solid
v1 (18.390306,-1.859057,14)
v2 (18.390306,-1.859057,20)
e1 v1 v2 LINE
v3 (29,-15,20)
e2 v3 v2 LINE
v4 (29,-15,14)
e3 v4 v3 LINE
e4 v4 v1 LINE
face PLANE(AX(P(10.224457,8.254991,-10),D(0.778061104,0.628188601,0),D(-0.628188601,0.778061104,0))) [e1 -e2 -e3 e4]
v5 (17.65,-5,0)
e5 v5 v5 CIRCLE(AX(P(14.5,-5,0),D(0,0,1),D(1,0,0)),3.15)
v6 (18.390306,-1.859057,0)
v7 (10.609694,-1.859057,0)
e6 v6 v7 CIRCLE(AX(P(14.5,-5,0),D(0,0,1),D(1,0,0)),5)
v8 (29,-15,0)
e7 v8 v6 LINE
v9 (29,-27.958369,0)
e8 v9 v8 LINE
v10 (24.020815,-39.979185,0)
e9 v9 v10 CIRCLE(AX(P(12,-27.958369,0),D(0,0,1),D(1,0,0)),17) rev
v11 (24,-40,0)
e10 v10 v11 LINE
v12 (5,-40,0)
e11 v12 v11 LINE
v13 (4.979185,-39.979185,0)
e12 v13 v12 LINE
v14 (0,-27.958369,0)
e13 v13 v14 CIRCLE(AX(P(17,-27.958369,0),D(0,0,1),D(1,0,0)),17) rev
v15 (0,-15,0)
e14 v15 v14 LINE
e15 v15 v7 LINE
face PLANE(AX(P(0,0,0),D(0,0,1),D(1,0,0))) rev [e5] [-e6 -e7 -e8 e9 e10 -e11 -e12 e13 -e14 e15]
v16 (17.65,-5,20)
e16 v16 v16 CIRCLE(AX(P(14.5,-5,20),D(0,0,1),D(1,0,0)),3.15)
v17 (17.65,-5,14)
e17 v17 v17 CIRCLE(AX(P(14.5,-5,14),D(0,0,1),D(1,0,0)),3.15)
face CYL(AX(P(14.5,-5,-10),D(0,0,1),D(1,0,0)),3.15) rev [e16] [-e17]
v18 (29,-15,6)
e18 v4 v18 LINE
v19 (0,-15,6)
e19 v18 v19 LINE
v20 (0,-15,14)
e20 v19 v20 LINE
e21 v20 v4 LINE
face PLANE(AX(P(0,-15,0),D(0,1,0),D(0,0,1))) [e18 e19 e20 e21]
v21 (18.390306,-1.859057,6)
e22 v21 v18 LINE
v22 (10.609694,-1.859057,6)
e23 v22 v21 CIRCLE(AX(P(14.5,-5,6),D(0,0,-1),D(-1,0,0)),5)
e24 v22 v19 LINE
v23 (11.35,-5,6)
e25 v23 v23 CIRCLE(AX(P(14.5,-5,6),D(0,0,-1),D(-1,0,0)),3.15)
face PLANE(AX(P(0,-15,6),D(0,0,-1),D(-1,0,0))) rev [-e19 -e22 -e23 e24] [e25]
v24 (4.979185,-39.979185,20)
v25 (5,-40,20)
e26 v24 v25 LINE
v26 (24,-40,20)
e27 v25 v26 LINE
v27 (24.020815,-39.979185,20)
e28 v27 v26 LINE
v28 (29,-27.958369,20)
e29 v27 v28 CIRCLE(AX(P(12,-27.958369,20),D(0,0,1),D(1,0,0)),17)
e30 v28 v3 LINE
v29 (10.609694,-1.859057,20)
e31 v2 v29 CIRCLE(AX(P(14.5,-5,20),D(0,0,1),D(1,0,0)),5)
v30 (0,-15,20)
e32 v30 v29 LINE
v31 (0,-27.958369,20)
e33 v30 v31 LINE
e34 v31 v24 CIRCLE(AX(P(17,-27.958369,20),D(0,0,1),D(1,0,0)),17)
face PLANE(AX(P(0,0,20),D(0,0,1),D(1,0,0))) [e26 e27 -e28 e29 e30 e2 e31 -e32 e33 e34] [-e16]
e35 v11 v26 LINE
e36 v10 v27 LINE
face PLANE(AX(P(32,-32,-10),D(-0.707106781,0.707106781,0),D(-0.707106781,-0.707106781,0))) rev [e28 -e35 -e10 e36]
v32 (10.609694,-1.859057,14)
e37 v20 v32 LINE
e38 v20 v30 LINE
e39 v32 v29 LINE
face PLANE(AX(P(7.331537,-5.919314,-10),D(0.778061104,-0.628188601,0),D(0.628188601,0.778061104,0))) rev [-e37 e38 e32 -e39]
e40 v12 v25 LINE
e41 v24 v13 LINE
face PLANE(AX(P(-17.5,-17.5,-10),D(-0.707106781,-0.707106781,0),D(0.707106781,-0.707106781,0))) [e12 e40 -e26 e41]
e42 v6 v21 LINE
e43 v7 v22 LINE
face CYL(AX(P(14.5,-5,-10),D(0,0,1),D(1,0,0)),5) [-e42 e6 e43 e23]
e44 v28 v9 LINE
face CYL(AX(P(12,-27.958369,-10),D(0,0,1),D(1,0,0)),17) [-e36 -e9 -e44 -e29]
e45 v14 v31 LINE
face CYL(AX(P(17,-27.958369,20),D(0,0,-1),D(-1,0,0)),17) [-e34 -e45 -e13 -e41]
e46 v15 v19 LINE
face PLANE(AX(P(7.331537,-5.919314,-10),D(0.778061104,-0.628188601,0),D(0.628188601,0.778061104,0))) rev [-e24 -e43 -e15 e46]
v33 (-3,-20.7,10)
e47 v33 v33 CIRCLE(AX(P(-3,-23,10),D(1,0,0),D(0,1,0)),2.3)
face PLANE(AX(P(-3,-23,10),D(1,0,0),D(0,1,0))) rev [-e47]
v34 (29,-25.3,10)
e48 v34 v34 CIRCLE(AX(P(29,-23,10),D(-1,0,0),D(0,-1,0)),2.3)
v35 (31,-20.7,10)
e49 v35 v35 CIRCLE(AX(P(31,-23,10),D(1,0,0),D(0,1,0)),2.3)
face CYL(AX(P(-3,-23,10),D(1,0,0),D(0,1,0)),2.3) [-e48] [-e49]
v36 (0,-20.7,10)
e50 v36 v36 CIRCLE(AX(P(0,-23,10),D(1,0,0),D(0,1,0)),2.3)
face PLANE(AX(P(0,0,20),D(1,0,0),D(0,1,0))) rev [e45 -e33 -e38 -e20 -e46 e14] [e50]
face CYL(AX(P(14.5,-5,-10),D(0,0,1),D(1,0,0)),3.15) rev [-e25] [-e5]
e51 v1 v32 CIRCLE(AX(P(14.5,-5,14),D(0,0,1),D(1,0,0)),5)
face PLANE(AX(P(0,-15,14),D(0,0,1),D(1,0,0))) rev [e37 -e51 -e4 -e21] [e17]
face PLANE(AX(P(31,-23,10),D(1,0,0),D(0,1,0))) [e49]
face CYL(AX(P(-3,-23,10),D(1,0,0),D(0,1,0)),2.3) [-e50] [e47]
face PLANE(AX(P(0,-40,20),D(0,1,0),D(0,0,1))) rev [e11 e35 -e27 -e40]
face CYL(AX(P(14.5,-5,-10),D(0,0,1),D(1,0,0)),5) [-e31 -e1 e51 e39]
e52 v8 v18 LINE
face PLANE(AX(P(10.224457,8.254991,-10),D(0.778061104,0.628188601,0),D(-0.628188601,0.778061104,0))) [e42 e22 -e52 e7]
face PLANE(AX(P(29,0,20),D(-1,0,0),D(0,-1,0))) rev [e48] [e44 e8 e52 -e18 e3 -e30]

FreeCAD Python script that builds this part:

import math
import FreeCAD as App
import Part
import Sketcher
from FreeCAD import Vector


def edges_at(feature, points):
    """Names of the edges that pass closest to the given points."""
    edges = feature.Shape.Edges
    near = lambda p: min(range(len(edges)), key=lambda i: edges[i].distToShape(Part.Vertex(*p))[0])
    return sorted({f"Edge{near(p) + 1}" for p in points})


def add_polygon(sketch, points):
    """Adds a closed chain of lines whose ends are joined by coincident constraints."""
    first, n = sketch.GeometryCount, len(points)
    for a, b in zip(points, points[1:] + points[:1]):
        sketch.addGeometry(Part.LineSegment(App.Vector(*a, 0), App.Vector(*b, 0)), False)
    for i in range(n):
        sketch.addConstraint(Sketcher.Constraint("Coincident", first + i, 2, first + (i + 1) % n, 1))

doc = App.newDocument("Part")
body = doc.addObject("PartDesign::Body", "Body")

sketch1 = body.newObject("Sketcher::SketchObject", "Sketch")
sketch1.AttachmentSupport = (doc.getObject("XY_Plane"), [""])
sketch1.MapMode = "FlatFace"
add_polygon(sketch1, [(0, 0), (0, -40), (29, -40), (29, 0)])
sketch1.addConstraint([
    Sketcher.Constraint("Vertical", 0),
    Sketcher.Constraint("Horizontal", 1),
    Sketcher.Constraint("Vertical", 2),
    Sketcher.Constraint("Horizontal", 3),
    Sketcher.Constraint("Coincident", 3, 2, -1, 1),
    Sketcher.Constraint("DistanceX", 1, 1, 1, 2, 29.0),
    Sketcher.Constraint("DistanceY", 0, 2, 0, 1, 40.0),
])
pad1 = body.newObject("PartDesign::Pad", "Pad")
pad1.Profile = sketch1
pad1.Length = 20

sketch2 = body.newObject("Sketcher::SketchObject", "Sketch001")
sketch2.AttachmentSupport = (doc.getObject("XZ_Plane"), [""])
sketch2.MapMode = "FlatFace"
add_polygon(sketch2, [(0, 6), (0, 14), (29, 14), (29, 6)])
sketch2.addConstraint([
    Sketcher.Constraint("Vertical", 0),
    Sketcher.Constraint("Horizontal", 1),
    Sketcher.Constraint("Vertical", 2),
    Sketcher.Constraint("Horizontal", 3),
    Sketcher.Constraint("PointOnObject", 0, 2, -2),
    Sketcher.Constraint("DistanceX", 1, 1, 1, 2, 29.0),
    Sketcher.Constraint("DistanceY", 0, 1, 0, 2, 8.0),
    Sketcher.Constraint("DistanceY", -1, 1, 0, 2, 14.0),
])
pocket1 = body.newObject("PartDesign::Pocket", "Pocket")
pocket1.Profile = sketch2
pocket1.Length = 15
pocket1.Reversed = True

sketch3 = body.newObject("Sketcher::SketchObject", "Sketch002")
sketch3.AttachmentSupport = (doc.getObject("XY_Plane"), [""])
sketch3.MapMode = "FlatFace"
sketch3.AttachmentOffset = App.Placement(Vector(0, 0, 20), App.Rotation())
sketch3.addGeometry(Part.LineSegment(Vector(0, 0, 0), Vector(0, -15, 0)), False)
sketch3.addGeometry(Part.LineSegment(Vector(0, -15, 0), Vector(10.6, -1.9, 0)), False)
sketch3.addGeometry(Part.ArcOfCircle(Part.Circle(Vector(14.5, -5, 0), Vector(0, 0, 1), 5), math.radians(90), math.radians(141)), False)
sketch3.addGeometry(Part.LineSegment(Vector(14.5, 0, 0), Vector(0, 0, 0)), False)
sketch3.addGeometry(Part.LineSegment(Vector(29, 0, 0), Vector(14.5, 0, 0)), False)
sketch3.addGeometry(Part.ArcOfCircle(Part.Circle(Vector(14.5, -5, 0), Vector(0, 0, 1), 5), math.radians(39), math.radians(90)), False)
sketch3.addGeometry(Part.LineSegment(Vector(18.4, -1.9, 0), Vector(29, -15, 0)), False)
sketch3.addGeometry(Part.LineSegment(Vector(29, -15, 0), Vector(29, 0, 0)), False)
add_polygon(sketch3, [(5, -40), (0, -35), (0, -40)])
add_polygon(sketch3, [(29, -35), (24, -40), (29, -40)])
sketch3.addGeometry(Part.Circle(Vector(14.5, -5, 0), Vector(0, 0, 1), 3.1), False)
sketch3.addConstraint([
    Sketcher.Constraint("Coincident", 0, 2, 1, 1),
    Sketcher.Constraint("Tangent", 1, 2, 2, 2),
    Sketcher.Constraint("Tangent", 2, 1, 3, 1),
    Sketcher.Constraint("Coincident", 3, 2, 0, 1),
    Sketcher.Constraint("Tangent", 4, 2, 5, 2),
    Sketcher.Constraint("Tangent", 5, 1, 6, 1),
    Sketcher.Constraint("Coincident", 6, 2, 7, 1),
    Sketcher.Constraint("Coincident", 7, 2, 4, 1),
    Sketcher.Constraint("Vertical", 0),
    Sketcher.Constraint("Horizontal", 3),
    Sketcher.Constraint("Horizontal", 4),
    Sketcher.Constraint("Vertical", 7),
    Sketcher.Constraint("Vertical", 9),
    Sketcher.Constraint("Horizontal", 10),
    Sketcher.Constraint("Horizontal", 12),
    Sketcher.Constraint("Vertical", 13),
    Sketcher.Constraint("Coincident", 3, 2, -1, 1),
    Sketcher.Constraint("Coincident", 5, 3, 2, 3),
    Sketcher.Constraint("Coincident", 14, 3, 2, 3),
    Sketcher.Constraint("Equal", 2, 5),
    Sketcher.Constraint("PointOnObject", 8, 2, -2),
    Sketcher.Constraint("Perpendicular", 8, 11),
    Sketcher.Constraint("Horizontal", 1, 2, 5, 1),
    Sketcher.Constraint("Horizontal", 0, 2, 6, 2),
    Sketcher.Constraint("Horizontal", 10, 2, 11, 2),
    Sketcher.Constraint("Horizontal", 8, 2, 13, 2),
    Sketcher.Constraint("Vertical", 7, 2, 12, 2),
    Sketcher.Constraint("Equal", 10, 12),
    Sketcher.Constraint("Radius", 2, 5.0),
    Sketcher.Constraint("Diameter", 14, 6.3),
    Sketcher.Constraint("DistanceX", 10, 1, 10, 2, 5.0),
    Sketcher.Constraint("DistanceY", 0, 2, 0, 1, 15.0),
    Sketcher.Constraint("DistanceX", 3, 2, 3, 1, 14.5),
    Sketcher.Constraint("DistanceY", 8, 2, -1, 1, 35.0),
])
pocket2 = body.newObject("PartDesign::Pocket", "Pocket001")
pocket2.Profile = sketch3
pocket2.Length = 30
doc.recompute()

fillet = body.newObject("PartDesign::Fillet", "Fillet")
fillet.Base = (pocket2, edges_at(pocket2, [(29, -35, 10), (0, -35, 10)]))
fillet.Radius = 17

sketch4 = body.newObject("Sketcher::SketchObject", "Sketch003")
sketch4.AttachmentSupport = (doc.getObject("YZ_Plane"), [""])
sketch4.MapMode = "FlatFace"
sketch4.AttachmentOffset = App.Placement(Vector(0, 0, 29), App.Rotation())
sketch4.addGeometry(Part.Circle(Vector(-23, 10, 0), Vector(0, 0, 1), 2.3), False)
sketch4.addConstraint([
    Sketcher.Constraint("Diameter", 0, 4.6),
    Sketcher.Constraint("DistanceX", 0, 3, -1, 1, 23.0),
    Sketcher.Constraint("DistanceY", -1, 1, 0, 3, 10.0),
])
pad2 = body.newObject("PartDesign::Pad", "Pad001")
pad2.Profile = sketch4
pad2.Type = "TwoLengths"
pad2.Length = 2
pad2.Length2 = 32

doc.recompute()
